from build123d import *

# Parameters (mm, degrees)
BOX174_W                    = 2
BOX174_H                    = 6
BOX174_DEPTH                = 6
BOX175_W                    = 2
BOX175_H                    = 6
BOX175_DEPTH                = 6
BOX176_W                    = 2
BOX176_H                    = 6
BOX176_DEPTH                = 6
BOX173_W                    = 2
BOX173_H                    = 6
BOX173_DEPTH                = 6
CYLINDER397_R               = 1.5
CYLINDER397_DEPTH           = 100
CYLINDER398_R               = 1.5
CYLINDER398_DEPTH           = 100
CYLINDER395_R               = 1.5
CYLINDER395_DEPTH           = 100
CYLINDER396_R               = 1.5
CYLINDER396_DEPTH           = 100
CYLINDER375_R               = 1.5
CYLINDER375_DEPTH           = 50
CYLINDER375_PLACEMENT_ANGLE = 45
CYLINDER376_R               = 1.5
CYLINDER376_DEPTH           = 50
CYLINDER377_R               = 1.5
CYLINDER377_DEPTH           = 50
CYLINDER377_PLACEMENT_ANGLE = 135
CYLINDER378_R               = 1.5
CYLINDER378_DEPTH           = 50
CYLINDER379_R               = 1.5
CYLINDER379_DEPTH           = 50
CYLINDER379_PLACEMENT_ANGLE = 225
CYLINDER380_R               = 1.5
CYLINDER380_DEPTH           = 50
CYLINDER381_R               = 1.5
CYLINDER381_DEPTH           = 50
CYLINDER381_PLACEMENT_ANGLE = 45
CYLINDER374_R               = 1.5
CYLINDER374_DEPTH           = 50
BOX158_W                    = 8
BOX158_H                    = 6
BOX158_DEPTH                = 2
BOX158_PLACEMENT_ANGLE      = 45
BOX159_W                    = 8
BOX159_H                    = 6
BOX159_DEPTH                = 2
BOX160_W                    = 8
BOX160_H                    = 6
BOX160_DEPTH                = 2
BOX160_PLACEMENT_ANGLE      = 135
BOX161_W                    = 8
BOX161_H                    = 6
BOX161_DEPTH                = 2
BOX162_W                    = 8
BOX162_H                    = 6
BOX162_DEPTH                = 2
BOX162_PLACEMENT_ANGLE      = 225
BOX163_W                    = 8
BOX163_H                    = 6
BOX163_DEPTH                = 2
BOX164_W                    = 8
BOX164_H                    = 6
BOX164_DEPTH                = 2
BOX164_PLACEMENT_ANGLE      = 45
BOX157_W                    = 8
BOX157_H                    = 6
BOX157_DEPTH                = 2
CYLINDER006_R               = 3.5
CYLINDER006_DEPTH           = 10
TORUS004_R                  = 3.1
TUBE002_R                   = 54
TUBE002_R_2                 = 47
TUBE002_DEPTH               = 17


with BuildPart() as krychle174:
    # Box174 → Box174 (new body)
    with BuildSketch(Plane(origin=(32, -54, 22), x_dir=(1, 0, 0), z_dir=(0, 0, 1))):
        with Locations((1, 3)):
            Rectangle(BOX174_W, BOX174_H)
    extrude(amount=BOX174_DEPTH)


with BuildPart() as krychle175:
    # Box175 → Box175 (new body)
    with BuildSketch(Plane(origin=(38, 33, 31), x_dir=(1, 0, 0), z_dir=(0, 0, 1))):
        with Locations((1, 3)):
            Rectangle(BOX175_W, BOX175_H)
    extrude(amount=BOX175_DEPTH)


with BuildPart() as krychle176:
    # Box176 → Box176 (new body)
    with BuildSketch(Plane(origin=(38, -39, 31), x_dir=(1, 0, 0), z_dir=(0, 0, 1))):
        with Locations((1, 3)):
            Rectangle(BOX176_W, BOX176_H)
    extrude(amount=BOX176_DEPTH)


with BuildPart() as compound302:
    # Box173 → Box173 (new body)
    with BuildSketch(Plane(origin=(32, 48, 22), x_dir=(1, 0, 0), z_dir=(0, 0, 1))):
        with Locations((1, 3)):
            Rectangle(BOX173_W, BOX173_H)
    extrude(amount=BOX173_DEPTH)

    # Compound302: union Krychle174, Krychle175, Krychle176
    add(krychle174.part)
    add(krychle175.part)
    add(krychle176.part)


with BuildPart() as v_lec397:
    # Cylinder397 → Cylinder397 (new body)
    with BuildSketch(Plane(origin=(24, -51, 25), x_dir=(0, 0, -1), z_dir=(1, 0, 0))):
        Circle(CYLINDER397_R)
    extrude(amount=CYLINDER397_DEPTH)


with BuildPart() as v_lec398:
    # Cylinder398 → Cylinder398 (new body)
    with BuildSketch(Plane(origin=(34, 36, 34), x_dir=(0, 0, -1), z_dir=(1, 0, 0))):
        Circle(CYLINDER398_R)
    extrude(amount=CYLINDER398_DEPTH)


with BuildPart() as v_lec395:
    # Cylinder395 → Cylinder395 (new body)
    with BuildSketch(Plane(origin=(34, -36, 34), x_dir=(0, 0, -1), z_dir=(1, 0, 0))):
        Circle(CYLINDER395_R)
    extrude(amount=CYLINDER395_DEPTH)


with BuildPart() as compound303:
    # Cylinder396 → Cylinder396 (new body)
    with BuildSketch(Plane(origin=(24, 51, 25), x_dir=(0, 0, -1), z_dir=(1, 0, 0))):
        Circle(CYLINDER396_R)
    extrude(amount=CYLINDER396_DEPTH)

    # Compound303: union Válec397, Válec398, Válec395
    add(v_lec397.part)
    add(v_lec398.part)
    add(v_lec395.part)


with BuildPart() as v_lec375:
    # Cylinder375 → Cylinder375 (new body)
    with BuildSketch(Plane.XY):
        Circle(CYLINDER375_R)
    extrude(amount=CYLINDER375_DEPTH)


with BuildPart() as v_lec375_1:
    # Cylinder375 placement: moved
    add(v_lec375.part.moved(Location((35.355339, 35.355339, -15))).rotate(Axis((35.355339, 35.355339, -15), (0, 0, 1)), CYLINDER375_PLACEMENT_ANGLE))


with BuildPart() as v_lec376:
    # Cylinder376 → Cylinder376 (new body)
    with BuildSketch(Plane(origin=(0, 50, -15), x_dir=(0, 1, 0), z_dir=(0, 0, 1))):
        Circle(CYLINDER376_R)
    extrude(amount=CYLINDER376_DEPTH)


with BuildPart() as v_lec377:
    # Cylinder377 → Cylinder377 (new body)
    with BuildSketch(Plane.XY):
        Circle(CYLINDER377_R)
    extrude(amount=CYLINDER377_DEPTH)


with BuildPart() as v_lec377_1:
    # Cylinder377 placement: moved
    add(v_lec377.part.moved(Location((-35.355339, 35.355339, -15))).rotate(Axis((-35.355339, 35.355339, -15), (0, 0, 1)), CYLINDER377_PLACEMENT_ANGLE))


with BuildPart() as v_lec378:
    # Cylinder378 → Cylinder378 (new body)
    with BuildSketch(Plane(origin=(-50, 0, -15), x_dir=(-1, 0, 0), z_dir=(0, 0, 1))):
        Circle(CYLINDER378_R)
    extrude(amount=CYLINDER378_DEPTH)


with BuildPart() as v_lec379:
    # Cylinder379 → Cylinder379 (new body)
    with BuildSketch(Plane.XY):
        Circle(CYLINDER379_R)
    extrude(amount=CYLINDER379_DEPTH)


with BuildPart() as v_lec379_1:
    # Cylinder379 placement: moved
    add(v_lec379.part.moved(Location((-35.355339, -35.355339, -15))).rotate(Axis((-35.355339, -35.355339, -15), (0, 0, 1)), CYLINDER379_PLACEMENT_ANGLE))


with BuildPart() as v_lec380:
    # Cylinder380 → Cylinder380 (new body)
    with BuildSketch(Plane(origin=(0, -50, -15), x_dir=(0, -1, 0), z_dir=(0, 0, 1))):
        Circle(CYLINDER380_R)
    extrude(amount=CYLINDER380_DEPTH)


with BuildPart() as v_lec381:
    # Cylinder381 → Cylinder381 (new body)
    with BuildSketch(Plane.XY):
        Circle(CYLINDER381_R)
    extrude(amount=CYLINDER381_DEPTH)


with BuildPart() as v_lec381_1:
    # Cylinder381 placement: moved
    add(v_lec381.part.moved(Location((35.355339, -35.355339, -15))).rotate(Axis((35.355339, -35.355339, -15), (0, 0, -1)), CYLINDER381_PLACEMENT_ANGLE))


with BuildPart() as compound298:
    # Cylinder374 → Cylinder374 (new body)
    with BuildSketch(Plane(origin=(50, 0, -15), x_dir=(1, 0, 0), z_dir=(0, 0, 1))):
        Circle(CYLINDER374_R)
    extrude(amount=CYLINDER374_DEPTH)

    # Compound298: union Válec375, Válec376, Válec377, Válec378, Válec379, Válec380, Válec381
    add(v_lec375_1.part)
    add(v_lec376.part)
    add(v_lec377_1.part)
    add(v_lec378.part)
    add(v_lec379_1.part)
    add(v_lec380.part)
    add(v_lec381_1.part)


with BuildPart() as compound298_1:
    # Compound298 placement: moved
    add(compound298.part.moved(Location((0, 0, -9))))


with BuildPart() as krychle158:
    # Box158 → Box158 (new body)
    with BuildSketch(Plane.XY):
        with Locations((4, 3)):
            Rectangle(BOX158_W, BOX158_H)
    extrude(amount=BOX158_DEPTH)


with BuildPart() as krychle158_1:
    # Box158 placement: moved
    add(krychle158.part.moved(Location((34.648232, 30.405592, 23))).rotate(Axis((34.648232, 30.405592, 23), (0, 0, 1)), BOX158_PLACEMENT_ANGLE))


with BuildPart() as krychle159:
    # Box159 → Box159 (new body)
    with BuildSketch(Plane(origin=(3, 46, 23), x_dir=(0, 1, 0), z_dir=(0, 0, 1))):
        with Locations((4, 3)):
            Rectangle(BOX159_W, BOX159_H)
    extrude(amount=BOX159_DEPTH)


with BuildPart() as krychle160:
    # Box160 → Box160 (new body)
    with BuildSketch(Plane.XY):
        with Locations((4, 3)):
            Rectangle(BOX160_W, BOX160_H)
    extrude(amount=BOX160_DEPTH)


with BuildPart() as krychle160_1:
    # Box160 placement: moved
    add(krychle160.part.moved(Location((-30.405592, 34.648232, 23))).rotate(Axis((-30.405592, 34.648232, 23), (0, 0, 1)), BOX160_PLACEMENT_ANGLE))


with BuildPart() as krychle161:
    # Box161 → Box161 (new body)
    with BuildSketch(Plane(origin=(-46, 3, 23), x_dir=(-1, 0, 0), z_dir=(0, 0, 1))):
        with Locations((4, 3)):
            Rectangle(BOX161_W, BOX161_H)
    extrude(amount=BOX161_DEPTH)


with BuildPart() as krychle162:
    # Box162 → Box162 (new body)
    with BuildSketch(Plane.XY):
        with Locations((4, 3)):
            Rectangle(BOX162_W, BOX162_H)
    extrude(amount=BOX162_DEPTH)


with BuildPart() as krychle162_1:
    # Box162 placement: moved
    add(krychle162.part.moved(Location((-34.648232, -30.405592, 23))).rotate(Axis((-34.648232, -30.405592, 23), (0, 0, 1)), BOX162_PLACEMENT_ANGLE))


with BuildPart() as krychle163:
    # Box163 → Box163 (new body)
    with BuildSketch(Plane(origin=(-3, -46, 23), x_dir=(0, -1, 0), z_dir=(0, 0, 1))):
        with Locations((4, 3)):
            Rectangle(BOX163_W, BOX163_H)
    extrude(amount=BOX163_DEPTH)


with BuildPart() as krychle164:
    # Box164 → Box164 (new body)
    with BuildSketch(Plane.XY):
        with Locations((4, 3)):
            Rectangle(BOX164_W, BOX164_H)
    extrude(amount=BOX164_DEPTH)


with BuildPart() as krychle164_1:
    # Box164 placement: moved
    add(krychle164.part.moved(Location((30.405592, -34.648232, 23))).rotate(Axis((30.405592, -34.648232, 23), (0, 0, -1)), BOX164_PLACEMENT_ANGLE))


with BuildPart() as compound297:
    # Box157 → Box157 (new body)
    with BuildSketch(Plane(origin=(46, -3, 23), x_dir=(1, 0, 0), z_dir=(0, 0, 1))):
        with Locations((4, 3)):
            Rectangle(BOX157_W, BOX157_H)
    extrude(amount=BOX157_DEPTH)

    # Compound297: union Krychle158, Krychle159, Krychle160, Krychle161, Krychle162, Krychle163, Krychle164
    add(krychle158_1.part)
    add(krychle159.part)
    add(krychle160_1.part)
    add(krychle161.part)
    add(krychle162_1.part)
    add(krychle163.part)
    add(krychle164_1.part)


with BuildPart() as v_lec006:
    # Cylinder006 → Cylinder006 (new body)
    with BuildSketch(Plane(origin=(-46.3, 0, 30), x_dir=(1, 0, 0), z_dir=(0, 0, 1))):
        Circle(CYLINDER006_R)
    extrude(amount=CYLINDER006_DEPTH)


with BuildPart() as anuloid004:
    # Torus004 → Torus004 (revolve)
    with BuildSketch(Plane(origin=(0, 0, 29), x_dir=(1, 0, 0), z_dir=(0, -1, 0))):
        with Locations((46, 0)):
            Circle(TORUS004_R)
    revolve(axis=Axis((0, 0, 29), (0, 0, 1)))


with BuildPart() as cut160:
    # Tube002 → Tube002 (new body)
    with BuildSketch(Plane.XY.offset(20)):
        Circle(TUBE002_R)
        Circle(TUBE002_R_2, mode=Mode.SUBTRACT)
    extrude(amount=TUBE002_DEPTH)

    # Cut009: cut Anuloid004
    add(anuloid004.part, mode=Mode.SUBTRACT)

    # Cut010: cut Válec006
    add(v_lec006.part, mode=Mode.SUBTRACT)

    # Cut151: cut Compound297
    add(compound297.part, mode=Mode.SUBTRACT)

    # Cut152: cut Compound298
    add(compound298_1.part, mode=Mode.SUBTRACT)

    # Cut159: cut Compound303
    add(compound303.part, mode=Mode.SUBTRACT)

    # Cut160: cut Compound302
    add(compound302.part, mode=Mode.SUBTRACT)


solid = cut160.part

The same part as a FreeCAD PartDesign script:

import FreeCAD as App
import Part
import Sketcher
Q = App.Units.Quantity

doc = App.newDocument("Part")
body = doc.addObject("PartDesign::Body", "Body")

# Sketch on XY plane
sketch1 = body.newObject("Sketcher::SketchObject", "Sketch")
sketch1.AttachmentSupport = (doc.getObject("XY_Plane"), [""])
sketch1.MapMode = "FlatFace"
sketch1.AttachmentOffset = App.Placement(App.Vector(0, 0, 22), App.Rotation())
sketch1.addGeometry(Part.LineSegment(App.Vector(32, -48, 0), App.Vector(32, -54, 0)), False)
sketch1.addGeometry(Part.LineSegment(App.Vector(32, -54, 0), App.Vector(34, -54, 0)), False)
sketch1.addGeometry(Part.LineSegment(App.Vector(34, -54, 0), App.Vector(34, -48, 0)), False)
sketch1.addGeometry(Part.LineSegment(App.Vector(34, -48, 0), App.Vector(32, -48, 0)), False)
sketch1.addConstraint(Sketcher.Constraint("Coincident", 0, 2, 1, 1))
sketch1.addConstraint(Sketcher.Constraint("Coincident", 1, 2, 2, 1))
sketch1.addConstraint(Sketcher.Constraint("Coincident", 2, 2, 3, 1))
sketch1.addConstraint(Sketcher.Constraint("Coincident", 3, 2, 0, 1))
sketch1.addConstraint(Sketcher.Constraint("Vertical", 0))
sketch1.addConstraint(Sketcher.Constraint("Horizontal", 1))
sketch1.addConstraint(Sketcher.Constraint("Vertical", 2))
sketch1.addConstraint(Sketcher.Constraint("Horizontal", 3))
sketch1.addConstraint(Sketcher.Constraint("DistanceX", 1, 1, 1, 2, Q("2 mm")))
sketch1.addConstraint(Sketcher.Constraint("DistanceY", 0, 2, 0, 1, Q("6 mm")))
sketch1.addConstraint(Sketcher.Constraint("DistanceX", -1, 1, 0, 2, Q("32 mm")))
sketch1.addConstraint(Sketcher.Constraint("DistanceY", 0, 2, -1, 1, Q("54 mm")))
pad1 = body.newObject("PartDesign::Pad", "Pad")
pad1.Profile = sketch1
pad1.Length = 6
body2 = doc.addObject("PartDesign::Body", "Body001")

# Sketch on XY plane
sketch2 = body2.newObject("Sketcher::SketchObject", "Sketch001")
sketch2.AttachmentSupport = (doc.getObject("XY_Plane001"), [""])
sketch2.MapMode = "FlatFace"
sketch2.AttachmentOffset = App.Placement(App.Vector(0, 0, 31), App.Rotation())
sketch2.addGeometry(Part.LineSegment(App.Vector(38, 39, 0), App.Vector(38, 33, 0)), False)
sketch2.addGeometry(Part.LineSegment(App.Vector(38, 33, 0), App.Vector(40, 33, 0)), False)
sketch2.addGeometry(Part.LineSegment(App.Vector(40, 33, 0), App.Vector(40, 39, 0)), False)
sketch2.addGeometry(Part.LineSegment(App.Vector(40, 39, 0), App.Vector(38, 39, 0)), False)
sketch2.addConstraint(Sketcher.Constraint("Coincident", 0, 2, 1, 1))
sketch2.addConstraint(Sketcher.Constraint("Coincident", 1, 2, 2, 1))
sketch2.addConstraint(Sketcher.Constraint("Coincident", 2, 2, 3, 1))
sketch2.addConstraint(Sketcher.Constraint("Coincident", 3, 2, 0, 1))
sketch2.addConstraint(Sketcher.Constraint("Vertical", 0))
sketch2.addConstraint(Sketcher.Constraint("Horizontal", 1))
sketch2.addConstraint(Sketcher.Constraint("Vertical", 2))
sketch2.addConstraint(Sketcher.Constraint("Horizontal", 3))
sketch2.addConstraint(Sketcher.Constraint("DistanceX", 1, 1, 1, 2, Q("2 mm")))
sketch2.addConstraint(Sketcher.Constraint("DistanceY", 0, 2, 0, 1, Q("6 mm")))
sketch2.addConstraint(Sketcher.Constraint("DistanceX", -1, 1, 0, 2, Q("38 mm")))
sketch2.addConstraint(Sketcher.Constraint("DistanceY", -1, 1, 0, 2, Q("33 mm")))
pad2 = body2.newObject("PartDesign::Pad", "Pad001")
pad2.Profile = sketch2
pad2.Length = 6
body3 = doc.addObject("PartDesign::Body", "Body002")

# Sketch on XY plane
sketch3 = body3.newObject("Sketcher::SketchObject", "Sketch002")
sketch3.AttachmentSupport = (doc.getObject("XY_Plane002"), [""])
sketch3.MapMode = "FlatFace"
sketch3.AttachmentOffset = App.Placement(App.Vector(0, 0, 31), App.Rotation())
sketch3.addGeometry(Part.LineSegment(App.Vector(38, -33, 0), App.Vector(38, -39, 0)), False)
sketch3.addGeometry(Part.LineSegment(App.Vector(38, -39, 0), App.Vector(40, -39, 0)), False)
sketch3.addGeometry(Part.LineSegment(App.Vector(40, -39, 0), App.Vector(40, -33, 0)), False)
sketch3.addGeometry(Part.LineSegment(App.Vector(40, -33, 0), App.Vector(38, -33, 0)), False)
sketch3.addConstraint(Sketcher.Constraint("Coincident", 0, 2, 1, 1))
sketch3.addConstraint(Sketcher.Constraint("Coincident", 1, 2, 2, 1))
sketch3.addConstraint(Sketcher.Constraint("Coincident", 2, 2, 3, 1))
sketch3.addConstraint(Sketcher.Constraint("Coincident", 3, 2, 0, 1))
sketch3.addConstraint(Sketcher.Constraint("Vertical", 0))
sketch3.addConstraint(Sketcher.Constraint("Horizontal", 1))
sketch3.addConstraint(Sketcher.Constraint("Vertical", 2))
sketch3.addConstraint(Sketcher.Constraint("Horizontal", 3))
sketch3.addConstraint(Sketcher.Constraint("DistanceX", 1, 1, 1, 2, Q("2 mm")))
sketch3.addConstraint(Sketcher.Constraint("DistanceY", 0, 2, 0, 1, Q("6 mm")))
sketch3.addConstraint(Sketcher.Constraint("DistanceX", -1, 1, 0, 2, Q("38 mm")))
sketch3.addConstraint(Sketcher.Constraint("DistanceY", 0, 2, -1, 1, Q("39 mm")))
pad3 = body3.newObject("PartDesign::Pad", "Pad002")
pad3.Profile = sketch3
pad3.Length = 6
body4 = doc.addObject("PartDesign::Body", "Body003")
body4.AllowCompound = True

# Sketch on XY plane
sketch4 = body4.newObject("Sketcher::SketchObject", "Sketch003")
sketch4.AttachmentSupport = (doc.getObject("XY_Plane003"), [""])
sketch4.MapMode = "FlatFace"
sketch4.AttachmentOffset = App.Placement(App.Vector(0, 0, 22), App.Rotation())
sketch4.addGeometry(Part.LineSegment(App.Vector(32, 54, 0), App.Vector(32, 48, 0)), False)
sketch4.addGeometry(Part.LineSegment(App.Vector(32, 48, 0), App.Vector(34, 48, 0)), False)
sketch4.addGeometry(Part.LineSegment(App.Vector(34, 48, 0), App.Vector(34, 54, 0)), False)
sketch4.addGeometry(Part.LineSegment(App.Vector(34, 54, 0), App.Vector(32, 54, 0)), False)
sketch4.addConstraint(Sketcher.Constraint("Coincident", 0, 2, 1, 1))
sketch4.addConstraint(Sketcher.Constraint("Coincident", 1, 2, 2, 1))
sketch4.addConstraint(Sketcher.Constraint("Coincident", 2, 2, 3, 1))
sketch4.addConstraint(Sketcher.Constraint("Coincident", 3, 2, 0, 1))
sketch4.addConstraint(Sketcher.Constraint("Vertical", 0))
sketch4.addConstraint(Sketcher.Constraint("Horizontal", 1))
sketch4.addConstraint(Sketcher.Constraint("Vertical", 2))
sketch4.addConstraint(Sketcher.Constraint("Horizontal", 3))
sketch4.addConstraint(Sketcher.Constraint("DistanceX", 1, 1, 1, 2, Q("2 mm")))
sketch4.addConstraint(Sketcher.Constraint("DistanceY", 0, 2, 0, 1, Q("6 mm")))
sketch4.addConstraint(Sketcher.Constraint("DistanceX", -1, 1, 0, 2, Q("32 mm")))
sketch4.addConstraint(Sketcher.Constraint("DistanceY", -1, 1, 0, 2, Q("48 mm")))
pad4 = body4.newObject("PartDesign::Pad", "Pad003")
pad4.Profile = sketch4
pad4.Length = 6
doc.recompute()

boolean = body4.newObject("PartDesign::Boolean", "Boolean")
boolean.Type = "Fuse"
boolean.addObjects([body])
doc.recompute()

boolean2 = body4.newObject("PartDesign::Boolean", "Boolean001")
boolean2.Type = "Fuse"
boolean2.addObjects([body2])
doc.recompute()

boolean3 = body4.newObject("PartDesign::Boolean", "Boolean002")
boolean3.Type = "Fuse"
boolean3.addObjects([body3])
body5 = doc.addObject("PartDesign::Body", "Body004")

# Sketch on YZ plane
sketch5 = body5.newObject("Sketcher::SketchObject", "Sketch004")
sketch5.AttachmentSupport = (doc.getObject("YZ_Plane004"), [""])
sketch5.MapMode = "FlatFace"
sketch5.AttachmentOffset = App.Placement(App.Vector(0, 0, 24), App.Rotation())
sketch5.addGeometry(Part.Circle(App.Vector(-51, 25, 0), App.Vector(0, 0, 1), 1.5), False)
sketch5.addConstraint(Sketcher.Constraint("Diameter", 0, Q("3 mm")))
sketch5.addConstraint(Sketcher.Constraint("DistanceX", 0, 3, -1, 1, Q("51 mm")))
sketch5.addConstraint(Sketcher.Constraint("DistanceY", -1, 1, 0, 3, Q("25 mm")))
pad5 = body5.newObject("PartDesign::Pad", "Pad004")
pad5.Profile = sketch5
pad5.Length = 100
body6 = doc.addObject("PartDesign::Body", "Body005")

# Sketch on YZ plane
sketch6 = body6.newObject("Sketcher::SketchObject", "Sketch005")
sketch6.AttachmentSupport = (doc.getObject("YZ_Plane005"), [""])
sketch6.MapMode = "FlatFace"
sketch6.AttachmentOffset = App.Placement(App.Vector(0, 0, 34), App.Rotation())
sketch6.addGeometry(Part.Circle(App.Vector(36, 34, 0), App.Vector(0, 0, 1), 1.5), False)
sketch6.addConstraint(Sketcher.Constraint("Diameter", 0, Q("3 mm")))
sketch6.addConstraint(Sketcher.Constraint("DistanceX", -1, 1, 0, 3, Q("36 mm")))
sketch6.addConstraint(Sketcher.Constraint("DistanceY", -1, 1, 0, 3, Q("34 mm")))
pad6 = body6.newObject("PartDesign::Pad", "Pad005")
pad6.Profile = sketch6
pad6.Length = 100
body7 = doc.addObject("PartDesign::Body", "Body006")

# Sketch on YZ plane
sketch7 = body7.newObject("Sketcher::SketchObject", "Sketch006")
sketch7.AttachmentSupport = (doc.getObject("YZ_Plane006"), [""])
sketch7.MapMode = "FlatFace"
sketch7.AttachmentOffset = App.Placement(App.Vector(0, 0, 34), App.Rotation())
sketch7.addGeometry(Part.Circle(App.Vector(-36, 34, 0), App.Vector(0, 0, 1), 1.5), False)
sketch7.addConstraint(Sketcher.Constraint("Diameter", 0, Q("3 mm")))
sketch7.addConstraint(Sketcher.Constraint("DistanceX", 0, 3, -1, 1, Q("36 mm")))
sketch7.addConstraint(Sketcher.Constraint("DistanceY", -1, 1, 0, 3, Q("34 mm")))
pad7 = body7.newObject("PartDesign::Pad", "Pad006")
pad7.Profile = sketch7
pad7.Length = 100
body8 = doc.addObject("PartDesign::Body", "Body007")
body8.AllowCompound = True

# Sketch on YZ plane
sketch8 = body8.newObject("Sketcher::SketchObject", "Sketch007")
sketch8.AttachmentSupport = (doc.getObject("YZ_Plane007"), [""])
sketch8.MapMode = "FlatFace"
sketch8.AttachmentOffset = App.Placement(App.Vector(0, 0, 24), App.Rotation())
sketch8.addGeometry(Part.Circle(App.Vector(51, 25, 0), App.Vector(0, 0, 1), 1.5), False)
sketch8.addConstraint(Sketcher.Constraint("Diameter", 0, Q("3 mm")))
sketch8.addConstraint(Sketcher.Constraint("DistanceX", -1, 1, 0, 3, Q("51 mm")))
sketch8.addConstraint(Sketcher.Constraint("DistanceY", -1, 1, 0, 3, Q("25 mm")))
pad8 = body8.newObject("PartDesign::Pad", "Pad007")
pad8.Profile = sketch8
pad8.Length = 100
doc.recompute()

boolean4 = body8.newObject("PartDesign::Boolean", "Boolean003")
boolean4.Type = "Fuse"
boolean4.addObjects([body5])
doc.recompute()

boolean5 = body8.newObject("PartDesign::Boolean", "Boolean004")
boolean5.Type = "Fuse"
boolean5.addObjects([body6])
doc.recompute()

boolean6 = body8.newObject("PartDesign::Boolean", "Boolean005")
boolean6.Type = "Fuse"
boolean6.addObjects([body7])
body9 = doc.addObject("PartDesign::Body", "Body008")

# Sketch on XY plane
sketch9 = body9.newObject("Sketcher::SketchObject", "Sketch008")
sketch9.AttachmentSupport = (doc.getObject("XY_Plane008"), [""])
sketch9.MapMode = "FlatFace"
sketch9.addGeometry(Part.Circle(App.Vector(0, 0, 0), App.Vector(0, 0, 1), 1.5), False)
sketch9.addConstraint(Sketcher.Constraint("Coincident", 0, 3, -1, 1))
sketch9.addConstraint(Sketcher.Constraint("Diameter", 0, Q("3 mm")))
pad9 = body9.newObject("PartDesign::Pad", "Pad008")
pad9.Profile = sketch9
pad9.Length = 50
body10 = doc.addObject("PartDesign::Body", "Body009")
doc.recompute()

body9.Placement = App.Placement(App.Vector(35.355339, 35.355339, -15), App.Rotation(App.Vector(0, 0, 1), 45))
boolean7 = body10.newObject("PartDesign::Boolean", "Boolean006")
boolean7.Type = "Fuse"
boolean7.addObjects([body9])
body11 = doc.addObject("PartDesign::Body", "Body010")

# Sketch on XY plane
sketch10 = body11.newObject("Sketcher::SketchObject", "Sketch009")
sketch10.AttachmentSupport = (doc.getObject("XY_Plane010"), [""])
sketch10.MapMode = "FlatFace"
sketch10.AttachmentOffset = App.Placement(App.Vector(0, 0, -15), App.Rotation())
sketch10.addGeometry(Part.Circle(App.Vector(0, 50, 0), App.Vector(0, 0, 1), 1.5), False)
sketch10.addConstraint(Sketcher.Constraint("PointOnObject", 0, 3, -2))
sketch10.addConstraint(Sketcher.Constraint("Diameter", 0, Q("3 mm")))
sketch10.addConstraint(Sketcher.Constraint("DistanceY", -1, 1, 0, 3, Q("50 mm")))
pad10 = body11.newObject("PartDesign::Pad", "Pad009")
pad10.Profile = sketch10
pad10.Length = 50
body12 = doc.addObject("PartDesign::Body", "Body011")

# Sketch on XY plane
sketch11 = body12.newObject("Sketcher::SketchObject", "Sketch010")
sketch11.AttachmentSupport = (doc.getObject("XY_Plane011"), [""])
sketch11.MapMode = "FlatFace"
sketch11.addGeometry(Part.Circle(App.Vector(0, 0, 0), App.Vector(0, 0, 1), 1.5), False)
sketch11.addConstraint(Sketcher.Constraint("Coincident", 0, 3, -1, 1))
sketch11.addConstraint(Sketcher.Constraint("Diameter", 0, Q("3 mm")))
pad11 = body12.newObject("PartDesign::Pad", "Pad010")
pad11.Profile = sketch11
pad11.Length = 50
body13 = doc.addObject("PartDesign::Body", "Body012")
doc.recompute()

body12.Placement = App.Placement(App.Vector(-35.355339, 35.355339, -15), App.Rotation(App.Vector(0, 0, 1), 135))
boolean8 = body13.newObject("PartDesign::Boolean", "Boolean007")
boolean8.Type = "Fuse"
boolean8.addObjects([body12])
body14 = doc.addObject("PartDesign::Body", "Body013")

# Sketch on XY plane
sketch12 = body14.newObject("Sketcher::SketchObject", "Sketch011")
sketch12.AttachmentSupport = (doc.getObject("XY_Plane013"), [""])
sketch12.MapMode = "FlatFace"
sketch12.AttachmentOffset = App.Placement(App.Vector(0, 0, -15), App.Rotation())
sketch12.addGeometry(Part.Circle(App.Vector(-50, 0, 0), App.Vector(0, 0, 1), 1.5), False)
sketch12.addConstraint(Sketcher.Constraint("PointOnObject", 0, 3, -1))
sketch12.addConstraint(Sketcher.Constraint("Diameter", 0, Q("3 mm")))
sketch12.addConstraint(Sketcher.Constraint("DistanceX", 0, 3, -1, 1, Q("50 mm")))
pad12 = body14.newObject("PartDesign::Pad", "Pad011")
pad12.Profile = sketch12
pad12.Length = 50
body15 = doc.addObject("PartDesign::Body", "Body014")

# Sketch on XY plane
sketch13 = body15.newObject("Sketcher::SketchObject", "Sketch012")
sketch13.AttachmentSupport = (doc.getObject("XY_Plane014"), [""])
sketch13.MapMode = "FlatFace"
sketch13.addGeometry(Part.Circle(App.Vector(0, 0, 0), App.Vector(0, 0, 1), 1.5), False)
sketch13.addConstraint(Sketcher.Constraint("Coincident", 0, 3, -1, 1))
sketch13.addConstraint(Sketcher.Constraint("Diameter", 0, Q("3 mm")))
pad13 = body15.newObject("PartDesign::Pad", "Pad012")
pad13.Profile = sketch13
pad13.Length = 50
body16 = doc.addObject("PartDesign::Body", "Body015")
doc.recompute()

body15.Placement = App.Placement(App.Vector(-35.355339, -35.355339, -15), App.Rotation(App.Vector(0, 0, 1), 225))
boolean9 = body16.newObject("PartDesign::Boolean", "Boolean008")
boolean9.Type = "Fuse"
boolean9.addObjects([body15])
body17 = doc.addObject("PartDesign::Body", "Body016")

# Sketch on XY plane
sketch14 = body17.newObject("Sketcher::SketchObject", "Sketch013")
sketch14.AttachmentSupport = (doc.getObject("XY_Plane016"), [""])
sketch14.MapMode = "FlatFace"
sketch14.AttachmentOffset = App.Placement(App.Vector(0, 0, -15), App.Rotation())
sketch14.addGeometry(Part.Circle(App.Vector(0, -50, 0), App.Vector(0, 0, 1), 1.5), False)
sketch14.addConstraint(Sketcher.Constraint("PointOnObject", 0, 3, -2))
sketch14.addConstraint(Sketcher.Constraint("Diameter", 0, Q("3 mm")))
sketch14.addConstraint(Sketcher.Constraint("DistanceY", 0, 3, -1, 1, Q("50 mm")))
pad14 = body17.newObject("PartDesign::Pad", "Pad013")
pad14.Profile = sketch14
pad14.Length = 50
body18 = doc.addObject("PartDesign::Body", "Body017")

# Sketch on XY plane
sketch15 = body18.newObject("Sketcher::SketchObject", "Sketch014")
sketch15.AttachmentSupport = (doc.getObject("XY_Plane017"), [""])
sketch15.MapMode = "FlatFace"
sketch15.addGeometry(Part.Circle(App.Vector(0, 0, 0), App.Vector(0, 0, 1), 1.5), False)
sketch15.addConstraint(Sketcher.Constraint("Coincident", 0, 3, -1, 1))
sketch15.addConstraint(Sketcher.Constraint("Diameter", 0, Q("3 mm")))
pad15 = body18.newObject("PartDesign::Pad", "Pad014")
pad15.Profile = sketch15
pad15.Length = 50
body19 = doc.addObject("PartDesign::Body", "Body018")
doc.recompute()

body18.Placement = App.Placement(App.Vector(35.355339, -35.355339, -15), App.Rotation(App.Vector(0, 0, -1), 45))
boolean10 = body19.newObject("PartDesign::Boolean", "Boolean009")
boolean10.Type = "Fuse"
boolean10.addObjects([body18])
body20 = doc.addObject("PartDesign::Body", "Body019")
body20.AllowCompound = True

# Sketch on XY plane
sketch16 = body20.newObject("Sketcher::SketchObject", "Sketch015")
sketch16.AttachmentSupport = (doc.getObject("XY_Plane019"), [""])
sketch16.MapMode = "FlatFace"
sketch16.AttachmentOffset = App.Placement(App.Vector(0, 0, -15), App.Rotation())
sketch16.addGeometry(Part.Circle(App.Vector(50, 0, 0), App.Vector(0, 0, 1), 1.5), False)
sketch16.addConstraint(Sketcher.Constraint("PointOnObject", 0, 3, -1))
sketch16.addConstraint(Sketcher.Constraint("Diameter", 0, Q("3 mm")))
sketch16.addConstraint(Sketcher.Constraint("DistanceX", -1, 1, 0, 3, Q("50 mm")))
pad16 = body20.newObject("PartDesign::Pad", "Pad015")
pad16.Profile = sketch16
pad16.Length = 50
doc.recompute()

boolean11 = body20.newObject("PartDesign::Boolean", "Boolean010")
boolean11.Type = "Fuse"
boolean11.addObjects([body10])
doc.recompute()

boolean12 = body20.newObject("PartDesign::Boolean", "Boolean011")
boolean12.Type = "Fuse"
boolean12.addObjects([body11])
doc.recompute()

boolean13 = body20.newObject("PartDesign::Boolean", "Boolean012")
boolean13.Type = "Fuse"
boolean13.addObjects([body13])
doc.recompute()

boolean14 = body20.newObject("PartDesign::Boolean", "Boolean013")
boolean14.Type = "Fuse"
boolean14.addObjects([body14])
doc.recompute()

boolean15 = body20.newObject("PartDesign::Boolean", "Boolean014")
boolean15.Type = "Fuse"
boolean15.addObjects([body16])
doc.recompute()

boolean16 = body20.newObject("PartDesign::Boolean", "Boolean015")
boolean16.Type = "Fuse"
boolean16.addObjects([body17])
doc.recompute()

boolean17 = body20.newObject("PartDesign::Boolean", "Boolean016")
boolean17.Type = "Fuse"
boolean17.addObjects([body19])
body21 = doc.addObject("PartDesign::Body", "Body020")
body21.AllowCompound = True
doc.recompute()

body20.Placement = App.Placement(App.Vector(0, 0, -9), App.Rotation(App.Vector(0, 0, 1), 0))
boolean18 = body21.newObject("PartDesign::Boolean", "Boolean017")
boolean18.Type = "Fuse"
boolean18.addObjects([body20])
body22 = doc.addObject("PartDesign::Body", "Body021")

# Sketch on XY plane
sketch17 = body22.newObject("Sketcher::SketchObject", "Sketch016")
sketch17.AttachmentSupport = (doc.getObject("XY_Plane021"), [""])
sketch17.MapMode = "FlatFace"
sketch17.addGeometry(Part.LineSegment(App.Vector(0, 6, 0), App.Vector(0, 0, 0)), False)
sketch17.addGeometry(Part.LineSegment(App.Vector(0, 0, 0), App.Vector(8, 0, 0)), False)
sketch17.addGeometry(Part.LineSegment(App.Vector(8, 0, 0), App.Vector(8, 6, 0)), False)
sketch17.addGeometry(Part.LineSegment(App.Vector(8, 6, 0), App.Vector(0, 6, 0)), False)
sketch17.addConstraint(Sketcher.Constraint("Coincident", 0, 2, 1, 1))
sketch17.addConstraint(Sketcher.Constraint("Coincident", 1, 2, 2, 1))
sketch17.addConstraint(Sketcher.Constraint("Coincident", 2, 2, 3, 1))
sketch17.addConstraint(Sketcher.Constraint("Coincident", 3, 2, 0, 1))
sketch17.addConstraint(Sketcher.Constraint("Vertical", 0))
sketch17.addConstraint(Sketcher.Constraint("Horizontal", 1))
sketch17.addConstraint(Sketcher.Constraint("Vertical", 2))
sketch17.addConstraint(Sketcher.Constraint("Horizontal", 3))
sketch17.addConstraint(Sketcher.Constraint("Coincident", 0, 2, -1, 1))
sketch17.addConstraint(Sketcher.Constraint("DistanceX", 1, 1, 1, 2, Q("8 mm")))
sketch17.addConstraint(Sketcher.Constraint("DistanceY", 0, 2, 0, 1, Q("6 mm")))
pad17 = body22.newObject("PartDesign::Pad", "Pad016")
pad17.Profile = sketch17
pad17.Length = 2
body23 = doc.addObject("PartDesign::Body", "Body022")
doc.recompute()

body22.Placement = App.Placement(App.Vector(34.648232, 30.405592, 23), App.Rotation(App.Vector(0, 0, 1), 45))
boolean19 = body23.newObject("PartDesign::Boolean", "Boolean018")
boolean19.Type = "Fuse"
boolean19.addObjects([body22])
body24 = doc.addObject("PartDesign::Body", "Body023")

# Sketch on XY plane
sketch18 = body24.newObject("Sketcher::SketchObject", "Sketch017")
sketch18.AttachmentSupport = (doc.getObject("XY_Plane023"), [""])
sketch18.MapMode = "FlatFace"
sketch18.AttachmentOffset = App.Placement(App.Vector(0, 0, 23), App.Rotation())
sketch18.addGeometry(Part.LineSegment(App.Vector(-3, 46, 0), App.Vector(3, 46, 0)), False)
sketch18.addGeometry(Part.LineSegment(App.Vector(3, 46, 0), App.Vector(3, 54, 0)), False)
sketch18.addGeometry(Part.LineSegment(App.Vector(3, 54, 0), App.Vector(-3, 54, 0)), False)
sketch18.addGeometry(Part.LineSegment(App.Vector(-3, 54, 0), App.Vector(-3, 46, 0)), False)
sketch18.addConstraint(Sketcher.Constraint("Coincident", 0, 2, 1, 1))
sketch18.addConstraint(Sketcher.Constraint("Coincident", 1, 2, 2, 1))
sketch18.addConstraint(Sketcher.Constraint("Coincident", 2, 2, 3, 1))
sketch18.addConstraint(Sketcher.Constraint("Coincident", 3, 2, 0, 1))
sketch18.addConstraint(Sketcher.Constraint("Horizontal", 0))
sketch18.addConstraint(Sketcher.Constraint("Vertical", 1))
sketch18.addConstraint(Sketcher.Constraint("Horizontal", 2))
sketch18.addConstraint(Sketcher.Constraint("Vertical", 3))
sketch18.addConstraint(Sketcher.Constraint("DistanceX", 0, 1, 0, 2, Q("6 mm")))
sketch18.addConstraint(Sketcher.Constraint("DistanceY", 1, 1, 1, 2, Q("8 mm")))
sketch18.addConstraint(Sketcher.Constraint("DistanceX", -1, 1, 0, 2, Q("3 mm")))
sketch18.addConstraint(Sketcher.Constraint("DistanceY", -1, 1, 0, 2, Q("46 mm")))
pad18 = body24.newObject("PartDesign::Pad", "Pad017")
pad18.Profile = sketch18
pad18.Length = 2
body25 = doc.addObject("PartDesign::Body", "Body024")

# Sketch on XY plane
sketch19 = body25.newObject("Sketcher::SketchObject", "Sketch018")
sketch19.AttachmentSupport = (doc.getObject("XY_Plane024"), [""])
sketch19.MapMode = "FlatFace"
sketch19.addGeometry(Part.LineSegment(App.Vector(0, 6, 0), App.Vector(0, 0, 0)), False)
sketch19.addGeometry(Part.LineSegment(App.Vector(0, 0, 0), App.Vector(8, 0, 0)), False)
sketch19.addGeometry(Part.LineSegment(App.Vector(8, 0, 0), App.Vector(8, 6, 0)), False)
sketch19.addGeometry(Part.LineSegment(App.Vector(8, 6, 0), App.Vector(0, 6, 0)), False)
sketch19.addConstraint(Sketcher.Constraint("Coincident", 0, 2, 1, 1))
sketch19.addConstraint(Sketcher.Constraint("Coincident", 1, 2, 2, 1))
sketch19.addConstraint(Sketcher.Constraint("Coincident", 2, 2, 3, 1))
sketch19.addConstraint(Sketcher.Constraint("Coincident", 3, 2, 0, 1))
sketch19.addConstraint(Sketcher.Constraint("Vertical", 0))
sketch19.addConstraint(Sketcher.Constraint("Horizontal", 1))
sketch19.addConstraint(Sketcher.Constraint("Vertical", 2))
sketch19.addConstraint(Sketcher.Constraint("Horizontal", 3))
sketch19.addConstraint(Sketcher.Constraint("Coincident", 0, 2, -1, 1))
sketch19.addConstraint(Sketcher.Constraint("DistanceX", 1, 1, 1, 2, Q("8 mm")))
sketch19.addConstraint(Sketcher.Constraint("DistanceY", 0, 2, 0, 1, Q("6 mm")))
pad19 = body25.newObject("PartDesign::Pad", "Pad018")
pad19.Profile = sketch19
pad19.Length = 2
body26 = doc.addObject("PartDesign::Body", "Body025")
doc.recompute()

body25.Placement = App.Placement(App.Vector(-30.405592, 34.648232, 23), App.Rotation(App.Vector(0, 0, 1), 135))
boolean20 = body26.newObject("PartDesign::Boolean", "Boolean019")
boolean20.Type = "Fuse"
boolean20.addObjects([body25])
body27 = doc.addObject("PartDesign::Body", "Body026")

# Sketch on XY plane
sketch20 = body27.newObject("Sketcher::SketchObject", "Sketch019")
sketch20.AttachmentSupport = (doc.getObject("XY_Plane026"), [""])
sketch20.MapMode = "FlatFace"
sketch20.AttachmentOffset = App.Placement(App.Vector(0, 0, 23), App.Rotation())
sketch20.addGeometry(Part.LineSegment(App.Vector(-46, -3, 0), App.Vector(-46, 3, 0)), False)
sketch20.addGeometry(Part.LineSegment(App.Vector(-46, 3, 0), App.Vector(-54, 3, 0)), False)
sketch20.addGeometry(Part.LineSegment(App.Vector(-54, 3, 0), App.Vector(-54, -3, 0)), False)
sketch20.addGeometry(Part.LineSegment(App.Vector(-54, -3, 0), App.Vector(-46, -3, 0)), False)
sketch20.addConstraint(Sketcher.Constraint("Coincident", 0, 2, 1, 1))
sketch20.addConstraint(Sketcher.Constraint("Coincident", 1, 2, 2, 1))
sketch20.addConstraint(Sketcher.Constraint("Coincident", 2, 2, 3, 1))
sketch20.addConstraint(Sketcher.Constraint("Coincident", 3, 2, 0, 1))
sketch20.addConstraint(Sketcher.Constraint("Vertical", 0))
sketch20.addConstraint(Sketcher.Constraint("Horizontal", 1))
sketch20.addConstraint(Sketcher.Constraint("Vertical", 2))
sketch20.addConstraint(Sketcher.Constraint("Horizontal", 3))
sketch20.addConstraint(Sketcher.Constraint("DistanceX", 1, 2, 1, 1, Q("8 mm")))
sketch20.addConstraint(Sketcher.Constraint("DistanceY", 0, 1, 0, 2, Q("6 mm")))
sketch20.addConstraint(Sketcher.Constraint("DistanceX", 0, 2, -1, 1, Q("46 mm")))
sketch20.addConstraint(Sketcher.Constraint("DistanceY", -1, 1, 0, 2, Q("3 mm")))
pad20 = body27.newObject("PartDesign::Pad", "Pad019")
pad20.Profile = sketch20
pad20.Length = 2
body28 = doc.addObject("PartDesign::Body", "Body027")

# Sketch on XY plane
sketch21 = body28.newObject("Sketcher::SketchObject", "Sketch020")
sketch21.AttachmentSupport = (doc.getObject("XY_Plane027"), [""])
sketch21.MapMode = "FlatFace"
sketch21.addGeometry(Part.LineSegment(App.Vector(0, 6, 0), App.Vector(0, 0, 0)), False)
sketch21.addGeometry(Part.LineSegment(App.Vector(0, 0, 0), App.Vector(8, 0, 0)), False)
sketch21.addGeometry(Part.LineSegment(App.Vector(8, 0, 0), App.Vector(8, 6, 0)), False)
sketch21.addGeometry(Part.LineSegment(App.Vector(8, 6, 0), App.Vector(0, 6, 0)), False)
sketch21.addConstraint(Sketcher.Constraint("Coincident", 0, 2, 1, 1))
sketch21.addConstraint(Sketcher.Constraint("Coincident", 1, 2, 2, 1))
sketch21.addConstraint(Sketcher.Constraint("Coincident", 2, 2, 3, 1))
sketch21.addConstraint(Sketcher.Constraint("Coincident", 3, 2, 0, 1))
sketch21.addConstraint(Sketcher.Constraint("Vertical", 0))
sketch21.addConstraint(Sketcher.Constraint("Horizontal", 1))
sketch21.addConstraint(Sketcher.Constraint("Vertical", 2))
sketch21.addConstraint(Sketcher.Constraint("Horizontal", 3))
sketch21.addConstraint(Sketcher.Constraint("Coincident", 0, 2, -1, 1))
sketch21.addConstraint(Sketcher.Constraint("DistanceX", 1, 1, 1, 2, Q("8 mm")))
sketch21.addConstraint(Sketcher.Constraint("DistanceY", 0, 2, 0, 1, Q("6 mm")))
pad21 = body28.newObject("PartDesign::Pad", "Pad020")
pad21.Profile = sketch21
pad21.Length = 2
body29 = doc.addObject("PartDesign::Body", "Body028")
doc.recompute()

body28.Placement = App.Placement(App.Vector(-34.648232, -30.405592, 23), App.Rotation(App.Vector(0, 0, 1), 225))
boolean21 = body29.newObject("PartDesign::Boolean", "Boolean020")
boolean21.Type = "Fuse"
boolean21.addObjects([body28])
body30 = doc.addObject("PartDesign::Body", "Body029")

# Sketch on XY plane
sketch22 = body30.newObject("Sketcher::SketchObject", "Sketch021")
sketch22.AttachmentSupport = (doc.getObject("XY_Plane029"), [""])
sketch22.MapMode = "FlatFace"
sketch22.AttachmentOffset = App.Placement(App.Vector(0, 0, 23), App.Rotation())
sketch22.addGeometry(Part.LineSegment(App.Vector(3, -46, 0), App.Vector(-3, -46, 0)), False)
sketch22.addGeometry(Part.LineSegment(App.Vector(-3, -46, 0), App.Vector(-3, -54, 0)), False)
sketch22.addGeometry(Part.LineSegment(App.Vector(-3, -54, 0), App.Vector(3, -54, 0)), False)
sketch22.addGeometry(Part.LineSegment(App.Vector(3, -54, 0), App.Vector(3, -46, 0)), False)
sketch22.addConstraint(Sketcher.Constraint("Coincident", 0, 2, 1, 1))
sketch22.addConstraint(Sketcher.Constraint("Coincident", 1, 2, 2, 1))
sketch22.addConstraint(Sketcher.Constraint("Coincident", 2, 2, 3, 1))
sketch22.addConstraint(Sketcher.Constraint("Coincident", 3, 2, 0, 1))
sketch22.addConstraint(Sketcher.Constraint("Horizontal", 0))
sketch22.addConstraint(Sketcher.Constraint("Vertical", 1))
sketch22.addConstraint(Sketcher.Constraint("Horizontal", 2))
sketch22.addConstraint(Sketcher.Constraint("Vertical", 3))
sketch22.addConstraint(Sketcher.Constraint("DistanceX", 0, 2, 0, 1, Q("6 mm")))
sketch22.addConstraint(Sketcher.Constraint("DistanceY", 1, 2, 1, 1, Q("8 mm")))
sketch22.addConstraint(Sketcher.Constraint("DistanceX", 0, 2, -1, 1, Q("3 mm")))
sketch22.addConstraint(Sketcher.Constraint("DistanceY", 0, 2, -1, 1, Q("46 mm")))
pad22 = body30.newObject("PartDesign::Pad", "Pad021")
pad22.Profile = sketch22
pad22.Length = 2
body31 = doc.addObject("PartDesign::Body", "Body030")

# Sketch on XY plane
sketch23 = body31.newObject("Sketcher::SketchObject", "Sketch022")
sketch23.AttachmentSupport = (doc.getObject("XY_Plane030"), [""])
sketch23.MapMode = "FlatFace"
sketch23.addGeometry(Part.LineSegment(App.Vector(0, 6, 0), App.Vector(0, 0, 0)), False)
sketch23.addGeometry(Part.LineSegment(App.Vector(0, 0, 0), App.Vector(8, 0, 0)), False)
sketch23.addGeometry(Part.LineSegment(App.Vector(8, 0, 0), App.Vector(8, 6, 0)), False)
sketch23.addGeometry(Part.LineSegment(App.Vector(8, 6, 0), App.Vector(0, 6, 0)), False)
sketch23.addConstraint(Sketcher.Constraint("Coincident", 0, 2, 1, 1))
sketch23.addConstraint(Sketcher.Constraint("Coincident", 1, 2, 2, 1))
sketch23.addConstraint(Sketcher.Constraint("Coincident", 2, 2, 3, 1))
sketch23.addConstraint(Sketcher.Constraint("Coincident", 3, 2, 0, 1))
sketch23.addConstraint(Sketcher.Constraint("Vertical", 0))
sketch23.addConstraint(Sketcher.Constraint("Horizontal", 1))
sketch23.addConstraint(Sketcher.Constraint("Vertical", 2))
sketch23.addConstraint(Sketcher.Constraint("Horizontal", 3))
sketch23.addConstraint(Sketcher.Constraint("Coincident", 0, 2, -1, 1))
sketch23.addConstraint(Sketcher.Constraint("DistanceX", 1, 1, 1, 2, Q("8 mm")))
sketch23.addConstraint(Sketcher.Constraint("DistanceY", 0, 2, 0, 1, Q("6 mm")))
pad23 = body31.newObject("PartDesign::Pad", "Pad022")
pad23.Profile = sketch23
pad23.Length = 2
body32 = doc.addObject("PartDesign::Body", "Body031")
doc.recompute()

body31.Placement = App.Placement(App.Vector(30.405592, -34.648232, 23), App.Rotation(App.Vector(0, 0, -1), 45))
boolean22 = body32.newObject("PartDesign::Boolean", "Boolean021")
boolean22.Type = "Fuse"
boolean22.addObjects([body31])
body33 = doc.addObject("PartDesign::Body", "Body032")
body33.AllowCompound = True

# Sketch on XY plane
sketch24 = body33.newObject("Sketcher::SketchObject", "Sketch023")
sketch24.AttachmentSupport = (doc.getObject("XY_Plane032"), [""])
sketch24.MapMode = "FlatFace"
sketch24.AttachmentOffset = App.Placement(App.Vector(0, 0, 23), App.Rotation())
sketch24.addGeometry(Part.LineSegment(App.Vector(46, 3, 0), App.Vector(46, -3, 0)), False)
sketch24.addGeometry(Part.LineSegment(App.Vector(46, -3, 0), App.Vector(54, -3, 0)), False)
sketch24.addGeometry(Part.LineSegment(App.Vector(54, -3, 0), App.Vector(54, 3, 0)), False)
sketch24.addGeometry(Part.LineSegment(App.Vector(54, 3, 0), App.Vector(46, 3, 0)), False)
sketch24.addConstraint(Sketcher.Constraint("Coincident", 0, 2, 1, 1))
sketch24.addConstraint(Sketcher.Constraint("Coincident", 1, 2, 2, 1))
sketch24.addConstraint(Sketcher.Constraint("Coincident", 2, 2, 3, 1))
sketch24.addConstraint(Sketcher.Constraint("Coincident", 3, 2, 0, 1))
sketch24.addConstraint(Sketcher.Constraint("Vertical", 0))
sketch24.addConstraint(Sketcher.Constraint("Horizontal", 1))
sketch24.addConstraint(Sketcher.Constraint("Vertical", 2))
sketch24.addConstraint(Sketcher.Constraint("Horizontal", 3))
sketch24.addConstraint(Sketcher.Constraint("DistanceX", 1, 1, 1, 2, Q("8 mm")))
sketch24.addConstraint(Sketcher.Constraint("DistanceY", 0, 2, 0, 1, Q("6 mm")))
sketch24.addConstraint(Sketcher.Constraint("DistanceX", -1, 1, 0, 2, Q("46 mm")))
sketch24.addConstraint(Sketcher.Constraint("DistanceY", 0, 2, -1, 1, Q("3 mm")))
pad24 = body33.newObject("PartDesign::Pad", "Pad023")
pad24.Profile = sketch24
pad24.Length = 2
doc.recompute()

boolean23 = body33.newObject("PartDesign::Boolean", "Boolean022")
boolean23.Type = "Fuse"
boolean23.addObjects([body23])
doc.recompute()

boolean24 = body33.newObject("PartDesign::Boolean", "Boolean023")
boolean24.Type = "Fuse"
boolean24.addObjects([body24])
doc.recompute()

boolean25 = body33.newObject("PartDesign::Boolean", "Boolean024")
boolean25.Type = "Fuse"
boolean25.addObjects([body26])
doc.recompute()

boolean26 = body33.newObject("PartDesign::Boolean", "Boolean025")
boolean26.Type = "Fuse"
boolean26.addObjects([body27])
doc.recompute()

boolean27 = body33.newObject("PartDesign::Boolean", "Boolean026")
boolean27.Type = "Fuse"
boolean27.addObjects([body29])
doc.recompute()

boolean28 = body33.newObject("PartDesign::Boolean", "Boolean027")
boolean28.Type = "Fuse"
boolean28.addObjects([body30])
doc.recompute()

boolean29 = body33.newObject("PartDesign::Boolean", "Boolean028")
boolean29.Type = "Fuse"
boolean29.addObjects([body32])
body34 = doc.addObject("PartDesign::Body", "Body033")

# Sketch on XY plane
sketch25 = body34.newObject("Sketcher::SketchObject", "Sketch024")
sketch25.AttachmentSupport = (doc.getObject("XY_Plane033"), [""])
sketch25.MapMode = "FlatFace"
sketch25.AttachmentOffset = App.Placement(App.Vector(0, 0, 30), App.Rotation())
sketch25.addGeometry(Part.Circle(App.Vector(-46.3, 0, 0), App.Vector(0, 0, 1), 3.5), False)
sketch25.addConstraint(Sketcher.Constraint("PointOnObject", 0, 3, -1))
sketch25.addConstraint(Sketcher.Constraint("Diameter", 0, Q("7 mm")))
sketch25.addConstraint(Sketcher.Constraint("DistanceX", 0, 3, -1, 1, Q("46.3 mm")))
pad25 = body34.newObject("PartDesign::Pad", "Pad024")
pad25.Profile = sketch25
pad25.Length = 10
body35 = doc.addObject("PartDesign::Body", "Body034")

# Sketch on XZ plane
sketch26 = body35.newObject("Sketcher::SketchObject", "Sketch025")
sketch26.AttachmentSupport = (doc.getObject("XZ_Plane034"), [""])
sketch26.MapMode = "FlatFace"
sketch26.addGeometry(Part.Circle(App.Vector(46, 29, 0), App.Vector(0, 0, 1), 3.1), False)
sketch26.addConstraint(Sketcher.Constraint("Diameter", 0, Q("6.2 mm")))
sketch26.addConstraint(Sketcher.Constraint("DistanceX", -1, 1, 0, 3, Q("46 mm")))
sketch26.addConstraint(Sketcher.Constraint("DistanceY", -1, 1, 0, 3, Q("29 mm")))
revolution = body35.newObject("PartDesign::Revolution", "Revolution")
revolution.Profile = sketch26
revolution.ReferenceAxis = (sketch26, ["V_Axis"])
revolution.Angle = 360
body36 = doc.addObject("PartDesign::Body", "Body035")

# Sketch on XY plane
sketch27 = body36.newObject("Sketcher::SketchObject", "Sketch026")
sketch27.AttachmentSupport = (doc.getObject("XY_Plane035"), [""])
sketch27.MapMode = "FlatFace"
sketch27.AttachmentOffset = App.Placement(App.Vector(0, 0, 20), App.Rotation())
sketch27.addGeometry(Part.Circle(App.Vector(0, 0, 0), App.Vector(0, 0, 1), 54), False)
sketch27.addGeometry(Part.Circle(App.Vector(0, 0, 0), App.Vector(0, 0, 1), 47), False)
sketch27.addConstraint(Sketcher.Constraint("Coincident", 0, 3, -1, 1))
sketch27.addConstraint(Sketcher.Constraint("Coincident", 1, 3, -1, 1))
sketch27.addConstraint(Sketcher.Constraint("Diameter", 0, Q("108 mm")))
sketch27.addConstraint(Sketcher.Constraint("Diameter", 1, Q("94 mm")))
pad26 = body36.newObject("PartDesign::Pad", "Pad025")
pad26.Profile = sketch27
pad26.Length = 17
doc.recompute()

boolean30 = body36.newObject("PartDesign::Boolean", "Boolean029")
boolean30.Type = "Cut"
boolean30.addObjects([body35])
doc.recompute()

boolean31 = body36.newObject("PartDesign::Boolean", "Boolean030")
boolean31.Type = "Cut"
boolean31.addObjects([body34])
doc.recompute()

boolean32 = body36.newObject("PartDesign::Boolean", "Boolean031")
boolean32.Type = "Cut"
boolean32.addObjects([body33])
doc.recompute()

boolean33 = body36.newObject("PartDesign::Boolean", "Boolean032")
boolean33.Type = "Cut"
boolean33.addObjects([body21])
doc.recompute()

boolean34 = body36.newObject("PartDesign::Boolean", "Boolean033")
boolean34.Type = "Cut"
boolean34.addObjects([body8])
doc.recompute()

boolean35 = body36.newObject("PartDesign::Boolean", "Boolean034")
boolean35.Type = "Cut"
boolean35.addObjects([body4])

doc.recompute()
